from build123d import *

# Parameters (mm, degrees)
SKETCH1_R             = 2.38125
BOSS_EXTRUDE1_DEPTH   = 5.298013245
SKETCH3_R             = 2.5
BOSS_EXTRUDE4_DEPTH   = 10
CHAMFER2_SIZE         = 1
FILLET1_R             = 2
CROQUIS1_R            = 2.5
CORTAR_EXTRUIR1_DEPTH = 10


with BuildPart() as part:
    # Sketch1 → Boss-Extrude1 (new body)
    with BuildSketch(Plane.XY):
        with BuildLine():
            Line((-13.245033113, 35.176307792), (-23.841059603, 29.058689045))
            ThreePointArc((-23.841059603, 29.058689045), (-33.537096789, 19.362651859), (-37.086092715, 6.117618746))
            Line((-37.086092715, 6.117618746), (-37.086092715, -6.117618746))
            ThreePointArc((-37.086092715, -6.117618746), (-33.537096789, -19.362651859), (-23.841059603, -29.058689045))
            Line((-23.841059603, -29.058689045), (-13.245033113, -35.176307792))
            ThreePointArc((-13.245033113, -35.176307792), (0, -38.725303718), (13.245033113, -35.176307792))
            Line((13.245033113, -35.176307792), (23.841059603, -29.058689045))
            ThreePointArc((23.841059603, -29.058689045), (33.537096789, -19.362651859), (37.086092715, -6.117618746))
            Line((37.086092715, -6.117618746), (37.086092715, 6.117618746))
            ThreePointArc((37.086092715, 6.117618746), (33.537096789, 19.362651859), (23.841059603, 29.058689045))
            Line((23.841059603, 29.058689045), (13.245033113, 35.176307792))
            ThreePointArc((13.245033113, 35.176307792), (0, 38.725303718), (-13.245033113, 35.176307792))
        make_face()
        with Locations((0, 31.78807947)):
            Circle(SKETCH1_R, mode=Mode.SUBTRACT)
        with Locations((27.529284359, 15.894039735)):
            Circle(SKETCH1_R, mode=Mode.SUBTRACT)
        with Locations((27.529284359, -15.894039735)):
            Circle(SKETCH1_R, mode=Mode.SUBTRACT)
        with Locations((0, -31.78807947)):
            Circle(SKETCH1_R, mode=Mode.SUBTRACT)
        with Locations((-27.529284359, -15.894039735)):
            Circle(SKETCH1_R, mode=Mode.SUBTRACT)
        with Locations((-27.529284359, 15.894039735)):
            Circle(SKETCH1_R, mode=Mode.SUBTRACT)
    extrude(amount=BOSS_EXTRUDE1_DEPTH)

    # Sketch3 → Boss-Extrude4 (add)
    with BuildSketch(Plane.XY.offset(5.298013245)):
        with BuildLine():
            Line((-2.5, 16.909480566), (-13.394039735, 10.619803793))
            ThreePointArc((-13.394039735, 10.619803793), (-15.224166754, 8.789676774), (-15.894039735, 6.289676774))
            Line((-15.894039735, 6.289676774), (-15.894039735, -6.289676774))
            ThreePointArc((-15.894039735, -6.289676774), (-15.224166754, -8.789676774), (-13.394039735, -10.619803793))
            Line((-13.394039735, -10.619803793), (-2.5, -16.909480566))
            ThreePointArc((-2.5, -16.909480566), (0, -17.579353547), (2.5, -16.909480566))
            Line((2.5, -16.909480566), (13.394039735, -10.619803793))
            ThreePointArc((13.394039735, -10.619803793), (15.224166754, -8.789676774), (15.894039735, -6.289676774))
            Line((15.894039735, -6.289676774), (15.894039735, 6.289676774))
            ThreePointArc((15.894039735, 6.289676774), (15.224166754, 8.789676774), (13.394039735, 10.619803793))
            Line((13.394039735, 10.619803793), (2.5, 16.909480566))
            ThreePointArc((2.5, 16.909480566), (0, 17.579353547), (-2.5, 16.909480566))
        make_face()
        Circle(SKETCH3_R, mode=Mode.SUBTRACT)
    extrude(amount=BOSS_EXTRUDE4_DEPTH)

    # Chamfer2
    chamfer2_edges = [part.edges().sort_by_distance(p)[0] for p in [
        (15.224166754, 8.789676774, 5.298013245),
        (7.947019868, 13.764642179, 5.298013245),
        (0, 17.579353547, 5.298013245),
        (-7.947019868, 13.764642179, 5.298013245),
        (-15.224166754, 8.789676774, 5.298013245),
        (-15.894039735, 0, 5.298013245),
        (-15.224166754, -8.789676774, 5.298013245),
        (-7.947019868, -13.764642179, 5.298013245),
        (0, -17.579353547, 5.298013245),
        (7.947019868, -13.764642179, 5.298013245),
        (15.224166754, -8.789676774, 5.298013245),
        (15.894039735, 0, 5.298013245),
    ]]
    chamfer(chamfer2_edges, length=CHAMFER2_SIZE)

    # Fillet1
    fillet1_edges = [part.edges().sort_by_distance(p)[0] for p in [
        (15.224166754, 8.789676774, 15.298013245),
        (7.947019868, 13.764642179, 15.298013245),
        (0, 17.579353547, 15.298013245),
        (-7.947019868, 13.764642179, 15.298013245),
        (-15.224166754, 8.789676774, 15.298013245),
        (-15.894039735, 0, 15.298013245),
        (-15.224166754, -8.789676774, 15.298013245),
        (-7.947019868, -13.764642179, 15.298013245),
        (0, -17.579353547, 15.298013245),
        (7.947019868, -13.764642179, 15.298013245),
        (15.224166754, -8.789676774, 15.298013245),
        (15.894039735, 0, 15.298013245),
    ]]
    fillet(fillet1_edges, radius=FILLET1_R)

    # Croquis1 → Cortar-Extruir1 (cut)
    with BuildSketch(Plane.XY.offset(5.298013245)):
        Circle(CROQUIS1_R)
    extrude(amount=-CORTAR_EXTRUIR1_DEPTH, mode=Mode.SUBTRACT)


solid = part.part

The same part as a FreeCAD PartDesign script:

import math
import FreeCAD as App
import Part
import Sketcher
Q = App.Units.Quantity


def edges_at(feature, points):
    """Names of the edges that pass closest to the given points."""
    edges = feature.Shape.Edges
    near = lambda p: min(range(len(edges)), key=lambda i: edges[i].distToShape(Part.Vertex(*p))[0])
    return sorted({f"Edge{near(p) + 1}" for p in points})

doc = App.newDocument("Part")
body = doc.addObject("PartDesign::Body", "Body")

# Sketch on XY plane
sketch1 = body.newObject("Sketcher::SketchObject", "Sketch")
sketch1.AttachmentSupport = (doc.getObject("XY_Plane"), [""])
sketch1.MapMode = "FlatFace"
sketch1.addGeometry([
    Part.LineSegment(App.Vector(-13.245033, 35.176308, 0), App.Vector(-23.84106, 29.058689, 0)),  # 0
    Part.ArcOfCircle(Part.Circle(App.Vector(-10.596026, 6.117619, 0), App.Vector(0, 0, 1), 26.490066), math.radians(120), math.radians(180)),  # 1
    Part.LineSegment(App.Vector(-37.086093, 6.117619, 0), App.Vector(-37.086093, -6.117619, 0)),  # 2
    Part.ArcOfCircle(Part.Circle(App.Vector(-10.596026, -6.117619, 0), App.Vector(0, 0, 1), 26.490066), math.radians(180), math.radians(240)),  # 3
    Part.LineSegment(App.Vector(-23.84106, -29.058689, 0), App.Vector(-13.245033, -35.176308, 0)),  # 4
    Part.ArcOfCircle(Part.Circle(App.Vector(0, -12.235237, 0), App.Vector(0, 0, 1), 26.490066), math.radians(-120), math.radians(-60)),  # 5
    Part.LineSegment(App.Vector(13.245033, -35.176308, 0), App.Vector(23.84106, -29.058689, 0)),  # 6
    Part.ArcOfCircle(Part.Circle(App.Vector(10.596026, -6.117619, 0), App.Vector(0, 0, 1), 26.490066), math.radians(-60), math.radians(0)),  # 7
    Part.LineSegment(App.Vector(37.086093, -6.117619, 0), App.Vector(37.086093, 6.117619, 0)),  # 8
    Part.ArcOfCircle(Part.Circle(App.Vector(10.596026, 6.117619, 0), App.Vector(0, 0, 1), 26.490066), math.radians(0), math.radians(60)),  # 9
    Part.LineSegment(App.Vector(23.84106, 29.058689, 0), App.Vector(13.245033, 35.176308, 0)),  # 10
    Part.ArcOfCircle(Part.Circle(App.Vector(0, 12.235237, 0), App.Vector(0, 0, 1), 26.490066), math.radians(60), math.radians(120)),  # 11
    Part.Circle(App.Vector(-27.529284, -15.89404, 0), App.Vector(0, 0, 1), 2.38125),  # 12
    Part.Circle(App.Vector(0, -31.788079, 0), App.Vector(0, 0, 1), 2.38125),  # 13
    Part.Circle(App.Vector(27.529284, -15.89404, 0), App.Vector(0, 0, 1), 2.38125),  # 14
    Part.Circle(App.Vector(-27.529284, 15.89404, 0), App.Vector(0, 0, 1), 2.38125),  # 15
    Part.Circle(App.Vector(27.529284, 15.89404, 0), App.Vector(0, 0, 1), 2.38125),  # 16
    Part.Circle(App.Vector(0, 31.788079, 0), App.Vector(0, 0, 1), 2.38125),  # 17
], False)
sketch1.addConstraint([
    Sketcher.Constraint("Tangent", 0, 2, 1, 1),
    Sketcher.Constraint("Tangent", 1, 2, 2, 1),
    Sketcher.Constraint("Tangent", 2, 2, 3, 1),
    Sketcher.Constraint("Tangent", 3, 2, 4, 1),
    Sketcher.Constraint("Tangent", 4, 2, 5, 1),
    Sketcher.Constraint("Tangent", 5, 2, 6, 1),
    Sketcher.Constraint("Tangent", 6, 2, 7, 1),
    Sketcher.Constraint("Tangent", 7, 2, 8, 1),
    Sketcher.Constraint("Tangent", 8, 2, 9, 1),
    Sketcher.Constraint("Tangent", 9, 2, 10, 1),
    Sketcher.Constraint("Tangent", 10, 2, 11, 1),
    Sketcher.Constraint("Tangent", 11, 2, 0, 1),
    Sketcher.Constraint("Vertical", 2),
    Sketcher.Constraint("Vertical", 8),
    Sketcher.Constraint("Equal", 1, 3),
    Sketcher.Constraint("Equal", 3, 5),
    Sketcher.Constraint("Equal", 5, 7),
    Sketcher.Constraint("Equal", 7, 9),
    Sketcher.Constraint("Equal", 9, 11),
    Sketcher.Constraint("Equal", 12, 13),
    Sketcher.Constraint("Equal", 13, 14),
    Sketcher.Constraint("Equal", 14, 15),
    Sketcher.Constraint("Equal", 15, 16),
    Sketcher.Constraint("Equal", 16, 17),
    Sketcher.Constraint("Symmetric", 1, 3, 7, 3, -1, 1),
    Sketcher.Constraint("Symmetric", 5, 3, 11, 3, -1, 1),
    Sketcher.Constraint("Symmetric", 14, 3, 15, 3, -1, 1),
    Sketcher.Constraint("Symmetric", 12, 3, 16, 3, -1, 1),
    Sketcher.Constraint("Symmetric", 13, 3, 17, 3, -1, 1),
    Sketcher.Constraint("Symmetric", 12, 3, 14, 3, -2),
    Sketcher.Constraint("Symmetric", 4, 2, 5, 2, -2),
    Sketcher.Constraint("PointOnObject", 13, 3, -2),
    Sketcher.Constraint("Parallel", 4, 10),
    Sketcher.Constraint("Angle", 0, Q("-150 deg")),
    Sketcher.Constraint("Diameter", 12, 4.7625),
    Sketcher.Constraint("Radius", 1, 26.490066),
    Sketcher.Constraint("DistanceY", 13, 3, 1, 3, 37.905698),
    Sketcher.Constraint("DistanceY", 2, 2, 2, 1, 12.235237),
    Sketcher.Constraint("DistanceY", 12, 3, -1, 1, 15.89404),
    Sketcher.Constraint("DistanceX", 0, 2, -1, 1, 23.84106),
    Sketcher.Constraint("DistanceX", 12, 3, 7, 3, 38.125311),
])
pad1 = body.newObject("PartDesign::Pad", "Pad")
pad1.Profile = sketch1
pad1.Length = 5.298013

# Sketch on XY plane
sketch2 = body.newObject("Sketcher::SketchObject", "Sketch001")
sketch2.AttachmentSupport = (doc.getObject("XY_Plane"), [""])
sketch2.MapMode = "FlatFace"
sketch2.AttachmentOffset = App.Placement(App.Vector(0, 0, 5.298013), App.Rotation())
sketch2.addGeometry([
    Part.LineSegment(App.Vector(-2.5, 16.909481, 0), App.Vector(-13.39404, 10.619804, 0)),  # 0
    Part.ArcOfCircle(Part.Circle(App.Vector(-10.89404, 6.289677, 0), App.Vector(0, 0, 1), 5), math.radians(120), math.radians(180)),  # 1
    Part.LineSegment(App.Vector(-15.89404, 6.289677, 0), App.Vector(-15.89404, -6.289677, 0)),  # 2
    Part.ArcOfCircle(Part.Circle(App.Vector(-10.89404, -6.289677, 0), App.Vector(0, 0, 1), 5), math.radians(180), math.radians(240)),  # 3
    Part.LineSegment(App.Vector(-13.39404, -10.619804, 0), App.Vector(-2.5, -16.909481, 0)),  # 4
    Part.ArcOfCircle(Part.Circle(App.Vector(0, -12.579354, 0), App.Vector(0, 0, 1), 5), math.radians(-120), math.radians(-60)),  # 5
    Part.LineSegment(App.Vector(2.5, -16.909481, 0), App.Vector(13.39404, -10.619804, 0)),  # 6
    Part.ArcOfCircle(Part.Circle(App.Vector(10.89404, -6.289677, 0), App.Vector(0, 0, 1), 5), math.radians(-60), math.radians(0)),  # 7
    Part.LineSegment(App.Vector(15.89404, -6.289677, 0), App.Vector(15.89404, 6.289677, 0)),  # 8
    Part.ArcOfCircle(Part.Circle(App.Vector(10.89404, 6.289677, 0), App.Vector(0, 0, 1), 5), math.radians(0), math.radians(60)),  # 9
    Part.LineSegment(App.Vector(13.39404, 10.619804, 0), App.Vector(2.5, 16.909481, 0)),  # 10
    Part.ArcOfCircle(Part.Circle(App.Vector(0, 12.579354, 0), App.Vector(0, 0, 1), 5), math.radians(60), math.radians(120)),  # 11
    Part.Circle(App.Vector(0, 0, 0), App.Vector(0, 0, 1), 2.5),  # 12
], False)
sketch2.addConstraint([
    Sketcher.Constraint("Tangent", 0, 2, 1, 1),
    Sketcher.Constraint("Tangent", 1, 2, 2, 1),
    Sketcher.Constraint("Tangent", 2, 2, 3, 1),
    Sketcher.Constraint("Tangent", 3, 2, 4, 1),
    Sketcher.Constraint("Tangent", 4, 2, 5, 1),
    Sketcher.Constraint("Tangent", 5, 2, 6, 1),
    Sketcher.Constraint("Tangent", 6, 2, 7, 1),
    Sketcher.Constraint("Tangent", 7, 2, 8, 1),
    Sketcher.Constraint("Tangent", 8, 2, 9, 1),
    Sketcher.Constraint("Tangent", 9, 2, 10, 1),
    Sketcher.Constraint("Tangent", 10, 2, 11, 1),
    Sketcher.Constraint("Tangent", 11, 2, 0, 1),
    Sketcher.Constraint("Vertical", 2),
    Sketcher.Constraint("Vertical", 8),
    Sketcher.Constraint("Coincident", 12, 3, -1, 1),
    Sketcher.Constraint("Equal", 1, 3),
    Sketcher.Constraint("Equal", 3, 5),
    Sketcher.Constraint("Equal", 5, 7),
    Sketcher.Constraint("Equal", 7, 9),
    Sketcher.Constraint("Equal", 9, 11),
    Sketcher.Constraint("Symmetric", 1, 3, 7, 3, -1, 1),
    Sketcher.Constraint("Symmetric", 5, 3, 11, 3, -1, 1),
    Sketcher.Constraint("Symmetric", 4, 2, 5, 2, -2),
    Sketcher.Constraint("Parallel", 4, 10),
    Sketcher.Constraint("Diameter", 12, 5.0),
    Sketcher.Constraint("Radius", 1, 5.0),
    Sketcher.Constraint("Angle", 0, Q("-150 deg")),
    Sketcher.Constraint("DistanceY", 2, 2, 2, 1, 12.579354),
    Sketcher.Constraint("DistanceX", 1, 3, -1, 1, 10.89404),
])
pad2 = body.newObject("PartDesign::Pad", "Pad001")
pad2.Profile = sketch2
pad2.Length = 10
doc.recompute()

chamfer = body.newObject("PartDesign::Chamfer", "Chamfer")
chamfer.Base = (pad2, edges_at(pad2, [
    (15.224, 8.79, 5.298),
    (7.947, 13.765, 5.298),
    (0, 17.579, 5.298),
    (-7.947, 13.765, 5.298),
    (-15.224, 8.79, 5.298),
    (-15.894, 0, 5.298),
    (-15.224, -8.79, 5.298),
    (-7.947, -13.765, 5.298),
    (0, -17.579, 5.298),
    (7.947, -13.765, 5.298),
    (15.224, -8.79, 5.298),
    (15.894, 0, 5.298),
]))
chamfer.Size = 1
doc.recompute()

fillet = body.newObject("PartDesign::Fillet", "Fillet")
fillet.Base = (chamfer, edges_at(chamfer, [
    (15.224, 8.79, 15.298),
    (7.947, 13.765, 15.298),
    (0, 17.579, 15.298),
    (-7.947, 13.765, 15.298),
    (-15.224, 8.79, 15.298),
    (-15.894, 0, 15.298),
    (-15.224, -8.79, 15.298),
    (-7.947, -13.765, 15.298),
    (0, -17.579, 15.298),
    (7.947, -13.765, 15.298),
    (15.224, -8.79, 15.298),
    (15.894, 0, 15.298),
]))
fillet.Radius = 2

# Sketch on XY plane
sketch3 = body.newObject("Sketcher::SketchObject", "Sketch002")
sketch3.AttachmentSupport = (doc.getObject("XY_Plane"), [""])
sketch3.MapMode = "FlatFace"
sketch3.AttachmentOffset = App.Placement(App.Vector(0, 0, 5.298013), App.Rotation())
sketch3.addGeometry(Part.Circle(App.Vector(0, 0, 0), App.Vector(0, 0, 1), 2.5), False)
sketch3.addConstraint([
    Sketcher.Constraint("Coincident", 0, 3, -1, 1),
    Sketcher.Constraint("Diameter", 0, 5.0),
])
pocket1 = body.newObject("PartDesign::Pocket", "Pocket")
pocket1.Profile = sketch3
pocket1.Length = 10

doc.recompute()
